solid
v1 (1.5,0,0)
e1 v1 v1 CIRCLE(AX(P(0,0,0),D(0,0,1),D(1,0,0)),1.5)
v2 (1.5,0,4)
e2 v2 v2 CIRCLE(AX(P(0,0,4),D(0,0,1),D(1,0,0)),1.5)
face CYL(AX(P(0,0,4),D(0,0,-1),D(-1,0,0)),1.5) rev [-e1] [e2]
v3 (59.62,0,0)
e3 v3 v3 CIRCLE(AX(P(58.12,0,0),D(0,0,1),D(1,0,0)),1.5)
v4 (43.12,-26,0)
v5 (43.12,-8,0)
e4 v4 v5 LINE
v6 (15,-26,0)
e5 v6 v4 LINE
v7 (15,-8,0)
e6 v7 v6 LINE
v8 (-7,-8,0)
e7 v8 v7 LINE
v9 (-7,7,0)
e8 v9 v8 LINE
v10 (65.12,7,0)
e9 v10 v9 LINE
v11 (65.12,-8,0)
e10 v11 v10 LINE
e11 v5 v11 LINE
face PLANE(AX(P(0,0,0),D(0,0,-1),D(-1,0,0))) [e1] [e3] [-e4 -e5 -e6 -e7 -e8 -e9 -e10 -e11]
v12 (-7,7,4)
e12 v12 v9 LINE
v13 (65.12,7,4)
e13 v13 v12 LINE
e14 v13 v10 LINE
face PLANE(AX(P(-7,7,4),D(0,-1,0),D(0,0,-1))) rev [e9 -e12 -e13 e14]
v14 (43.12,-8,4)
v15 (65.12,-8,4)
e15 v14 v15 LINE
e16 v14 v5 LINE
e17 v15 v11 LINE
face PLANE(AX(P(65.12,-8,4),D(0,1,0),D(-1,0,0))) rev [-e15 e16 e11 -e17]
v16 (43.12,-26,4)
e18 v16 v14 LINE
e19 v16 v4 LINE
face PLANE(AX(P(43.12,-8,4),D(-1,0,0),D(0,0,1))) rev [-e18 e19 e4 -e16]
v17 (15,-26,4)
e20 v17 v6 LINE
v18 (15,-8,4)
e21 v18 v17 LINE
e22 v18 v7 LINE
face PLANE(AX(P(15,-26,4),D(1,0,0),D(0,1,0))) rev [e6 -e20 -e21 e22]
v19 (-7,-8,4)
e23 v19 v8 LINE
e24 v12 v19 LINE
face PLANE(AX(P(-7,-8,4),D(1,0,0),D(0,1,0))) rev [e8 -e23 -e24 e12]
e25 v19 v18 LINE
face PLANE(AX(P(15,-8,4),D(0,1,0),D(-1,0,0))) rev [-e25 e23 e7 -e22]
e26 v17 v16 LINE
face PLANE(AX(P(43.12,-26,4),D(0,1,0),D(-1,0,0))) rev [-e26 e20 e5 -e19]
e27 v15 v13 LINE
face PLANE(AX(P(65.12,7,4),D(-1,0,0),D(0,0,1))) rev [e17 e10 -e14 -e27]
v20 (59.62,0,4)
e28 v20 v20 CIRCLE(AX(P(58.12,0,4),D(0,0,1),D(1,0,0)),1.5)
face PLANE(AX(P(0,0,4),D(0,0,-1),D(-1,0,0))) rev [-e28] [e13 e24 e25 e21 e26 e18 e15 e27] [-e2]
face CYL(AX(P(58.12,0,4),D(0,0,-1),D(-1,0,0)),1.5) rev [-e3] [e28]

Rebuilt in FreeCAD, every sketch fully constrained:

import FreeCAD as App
import Part
import Sketcher

V = App.Vector
Q = App.Units.Quantity


def add_polygon(sketch, points):
    """Adds a closed chain of lines whose ends are joined by coincident constraints."""
    first, n = sketch.GeometryCount, len(points)
    for a, b in zip(points, points[1:] + points[:1]):
        sketch.addGeometry(Part.LineSegment(App.Vector(*a, 0), App.Vector(*b, 0)), False)
    for i in range(n):
        sketch.addConstraint(Sketcher.Constraint("Coincident", first + i, 2, first + (i + 1) % n, 1))

doc = App.newDocument("Part")
params = doc.addObject("Spreadsheet::Sheet", "Params")
for row, (alias, value) in enumerate([
    ("sketch1_diameter", "3 mm"),
    ("sketch1_width", "22 mm"),
    ("sketch1_height", "15 mm"),
    ("sketch1_height2", "18 mm"),
    ("sketch1_width2", "72.12 mm"),
    ("pad1_length", "4 mm"),
], start=1):
    params.set(f"A{row}", alias)
    params.set(f"B{row}", "=" + value)
    params.setAlias(f"B{row}", alias)

body = doc.addObject("PartDesign::Body", "Body")

sketch1 = doc.addObject("Sketcher::SketchObject", "Sketch")
body.addObject(sketch1)
sketch1.AttachmentSupport = (doc.XY_Plane, [""])
sketch1.MapMode = "FlatFace"
add_polygon(sketch1, [(65.1, 7), (-7, 7), (-7, -8), (15, -8), (15, -26), (43.1, -26), (43.1, -8), (65.1, -8)])
sketch1.addGeometry(Part.Circle(V(58.1, 0, 0), V(0, 0, 1), 1.5), False)
sketch1.addGeometry(Part.Circle(V(0, 0, 0), V(0, 0, 1), 1.5), False)
sketch1.addConstraint([
    Sketcher.Constraint("Horizontal", 0),
    Sketcher.Constraint("Vertical", 1),
    Sketcher.Constraint("Horizontal", 2),
    Sketcher.Constraint("Vertical", 3),
    Sketcher.Constraint("Horizontal", 4),
    Sketcher.Constraint("Vertical", 5),
    Sketcher.Constraint("Horizontal", 6),
    Sketcher.Constraint("Vertical", 7),
    Sketcher.Constraint("Coincident", 9, 3, -1, 1),
    Sketcher.Constraint("Equal", 8, 9),
    Sketcher.Constraint("PointOnObject", 8, 3, -1),
    Sketcher.Constraint("Horizontal", 2, 2, 5, 2),
    Sketcher.Constraint("Equal", 2, 6),
    Sketcher.Constraint("Diameter", 8, Q("3 mm")),
    Sketcher.Constraint("DistanceX", 2, 1, 2, 2, Q("22 mm")),
    Sketcher.Constraint("DistanceY", 1, 2, 1, 1, Q("15 mm")),
    Sketcher.Constraint("DistanceY", 3, 2, 3, 1, Q("18 mm")),
    Sketcher.Constraint("DistanceX", 0, 2, -1, 1, Q("7 mm")),
    Sketcher.Constraint("DistanceY", -1, 1, 0, 2, Q("7 mm")),
    Sketcher.Constraint("DistanceX", 4, 2, 8, 3, Q("15 mm")),
    Sketcher.Constraint("DistanceX", 0, 2, 0, 1, Q("72.12 mm")),
])
sketch1.setExpression("Constraints[21]", "Params.sketch1_diameter")
sketch1.setExpression("Constraints[22]", "Params.sketch1_width")
sketch1.setExpression("Constraints[23]", "Params.sketch1_height")
sketch1.setExpression("Constraints[24]", "Params.sketch1_height2")
sketch1.setExpression("Constraints[28]", "Params.sketch1_width2")
pad1 = doc.addObject("PartDesign::Pad", "Pad")
body.addObject(pad1)
pad1.Profile = sketch1
pad1.setExpression("Length", "Params.pad1_length")

doc.recompute()
